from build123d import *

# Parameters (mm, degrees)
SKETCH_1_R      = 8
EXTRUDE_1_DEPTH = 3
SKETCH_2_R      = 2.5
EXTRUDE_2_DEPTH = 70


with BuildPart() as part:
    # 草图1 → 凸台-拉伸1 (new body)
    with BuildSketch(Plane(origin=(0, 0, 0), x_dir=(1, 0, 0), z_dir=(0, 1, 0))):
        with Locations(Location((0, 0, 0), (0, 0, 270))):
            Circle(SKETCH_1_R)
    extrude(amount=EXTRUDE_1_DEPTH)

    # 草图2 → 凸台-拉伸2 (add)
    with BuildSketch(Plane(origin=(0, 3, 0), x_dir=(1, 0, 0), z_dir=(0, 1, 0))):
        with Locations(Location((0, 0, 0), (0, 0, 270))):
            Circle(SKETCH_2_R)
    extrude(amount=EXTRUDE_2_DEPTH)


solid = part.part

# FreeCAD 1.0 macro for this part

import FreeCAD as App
import Part
import Sketcher
from FreeCAD import Vector
Q = App.Units.Quantity

doc = App.newDocument("Part")
body = doc.addObject("PartDesign::Body", "Body")

sketch1 = body.newObject("Sketcher::SketchObject", "Sketch")
sketch1.AttachmentSupport = (doc.getObject("XZ_Plane"), [""])
sketch1.MapMode = "FlatFace"
sketch1.addGeometry(Part.Circle(Vector(0, 0, 0), Vector(0, 0, 1), 8), False)
sketch1.addConstraint(Sketcher.Constraint("Coincident", 0, 3, -1, 1))
sketch1.addConstraint(Sketcher.Constraint("Diameter", 0, Q("16 mm")))
pad1 = body.newObject("PartDesign::Pad", "Pad")
pad1.Profile = sketch1
pad1.Length = 3
pad1.Reversed = True

sketch2 = body.newObject("Sketcher::SketchObject", "Sketch001")
sketch2.AttachmentSupport = (doc.getObject("XZ_Plane"), [""])
sketch2.MapMode = "FlatFace"
sketch2.AttachmentOffset = App.Placement(Vector(0, 0, -3), App.Rotation())
sketch2.addGeometry(Part.Circle(Vector(0, 0, 0), Vector(0, 0, 1), 2.5), False)
sketch2.addConstraint(Sketcher.Constraint("Coincident", 0, 3, -1, 1))
sketch2.addConstraint(Sketcher.Constraint("Diameter", 0, Q("5 mm")))
pad2 = body.newObject("PartDesign::Pad", "Pad001")
pad2.Profile = sketch2
pad2.Length = 70
pad2.Reversed = True

doc.recompute()
